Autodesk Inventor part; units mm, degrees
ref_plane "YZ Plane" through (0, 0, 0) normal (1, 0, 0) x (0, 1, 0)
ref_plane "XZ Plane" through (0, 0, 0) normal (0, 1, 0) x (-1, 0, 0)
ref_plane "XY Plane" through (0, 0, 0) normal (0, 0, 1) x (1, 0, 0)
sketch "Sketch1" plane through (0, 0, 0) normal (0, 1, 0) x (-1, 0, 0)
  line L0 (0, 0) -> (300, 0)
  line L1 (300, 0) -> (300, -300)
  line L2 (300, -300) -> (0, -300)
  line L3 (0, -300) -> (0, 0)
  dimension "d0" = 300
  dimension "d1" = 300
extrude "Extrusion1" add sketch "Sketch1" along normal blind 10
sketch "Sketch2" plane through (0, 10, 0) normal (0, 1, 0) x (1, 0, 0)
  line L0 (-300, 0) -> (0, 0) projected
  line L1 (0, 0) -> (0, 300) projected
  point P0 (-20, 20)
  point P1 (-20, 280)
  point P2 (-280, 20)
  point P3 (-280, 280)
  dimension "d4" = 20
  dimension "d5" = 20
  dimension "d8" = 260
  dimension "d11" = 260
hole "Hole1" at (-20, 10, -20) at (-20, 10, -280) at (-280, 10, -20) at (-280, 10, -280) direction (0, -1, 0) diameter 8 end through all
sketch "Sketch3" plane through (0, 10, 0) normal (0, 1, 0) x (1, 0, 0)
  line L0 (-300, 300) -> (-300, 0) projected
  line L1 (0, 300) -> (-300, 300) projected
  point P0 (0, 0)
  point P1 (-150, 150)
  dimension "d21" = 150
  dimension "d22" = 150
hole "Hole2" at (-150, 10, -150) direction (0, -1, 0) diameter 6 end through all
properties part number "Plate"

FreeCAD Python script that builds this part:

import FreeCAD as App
import Part
import Sketcher
from FreeCAD import Vector
Q = App.Units.Quantity

doc = App.newDocument("Part")
body = doc.addObject("PartDesign::Body", "Body")

sketch1 = body.newObject("Sketcher::SketchObject", "Sketch")
sketch1.AttachmentSupport = (doc.getObject("XZ_Plane"), [""])
sketch1.MapMode = "FlatFace"
sketch1.addGeometry(Part.LineSegment(Vector(-300, 0, 0), Vector(0, 0, 0)), False)
sketch1.addGeometry(Part.LineSegment(Vector(0, 0, 0), Vector(0, -300, 0)), False)
sketch1.addGeometry(Part.LineSegment(Vector(0, -300, 0), Vector(-300, -300, 0)), False)
sketch1.addGeometry(Part.LineSegment(Vector(-300, -300, 0), Vector(-300, 0, 0)), False)
sketch1.addConstraint(Sketcher.Constraint("Coincident", 0, 2, 1, 1))
sketch1.addConstraint(Sketcher.Constraint("Coincident", 1, 2, 2, 1))
sketch1.addConstraint(Sketcher.Constraint("Coincident", 2, 2, 3, 1))
sketch1.addConstraint(Sketcher.Constraint("Coincident", 3, 2, 0, 1))
sketch1.addConstraint(Sketcher.Constraint("Horizontal", 0))
sketch1.addConstraint(Sketcher.Constraint("Vertical", 1))
sketch1.addConstraint(Sketcher.Constraint("Horizontal", 2))
sketch1.addConstraint(Sketcher.Constraint("Vertical", 3))
sketch1.addConstraint(Sketcher.Constraint("Coincident", 0, 2, -1, 1))
sketch1.addConstraint(Sketcher.Constraint("Equal", 2, 1))
sketch1.addConstraint(Sketcher.Constraint("DistanceX", 0, 1, 0, 2, Q("300 mm")))
pad1 = body.newObject("PartDesign::Pad", "Pad")
pad1.Profile = sketch1
pad1.Length = 10
pad1.Reversed = True

sketch2 = body.newObject("Sketcher::SketchObject", "Sketch001")
sketch2.AttachmentSupport = (doc.getObject("XZ_Plane"), [""])
sketch2.MapMode = "FlatFace"
sketch2.AttachmentOffset = App.Placement(Vector(0, 0, -10), App.Rotation())
sketch2.addGeometry(Part.Circle(Vector(-20, -20, 0), Vector(0, 0, 1), 4), False)
sketch2.addGeometry(Part.Circle(Vector(-20, -280, 0), Vector(0, 0, 1), 4), False)
sketch2.addGeometry(Part.Circle(Vector(-280, -20, 0), Vector(0, 0, 1), 4), False)
sketch2.addGeometry(Part.Circle(Vector(-280, -280, 0), Vector(0, 0, 1), 4), False)
sketch2.addConstraint(Sketcher.Constraint("Equal", 0, 1))
sketch2.addConstraint(Sketcher.Constraint("Equal", 1, 2))
sketch2.addConstraint(Sketcher.Constraint("Equal", 2, 3))
sketch2.addConstraint(Sketcher.Constraint("Horizontal", 0, 3, 2, 3))
sketch2.addConstraint(Sketcher.Constraint("Horizontal", 1, 3, 3, 3))
sketch2.addConstraint(Sketcher.Constraint("Vertical", 0, 3, 1, 3))
sketch2.addConstraint(Sketcher.Constraint("Vertical", 2, 3, 3, 3))
sketch2.addConstraint(Sketcher.Constraint("Diameter", 0, Q("8 mm")))
sketch2.addConstraint(Sketcher.Constraint("DistanceX", 0, 3, -1, 1, Q("20 mm")))
sketch2.addConstraint(Sketcher.Constraint("DistanceY", 0, 3, -1, 1, Q("20 mm")))
sketch2.addConstraint(Sketcher.Constraint("DistanceY", 1, 3, -1, 1, Q("280 mm")))
sketch2.addConstraint(Sketcher.Constraint("DistanceX", 2, 3, -1, 1, Q("280 mm")))
doc.recompute()
hole = body.newObject("PartDesign::Hole", "Hole")
hole.Profile = sketch2
hole.ThreadType = "None"
hole.Diameter = 8
hole.DepthType = "ThroughAll"
hole.Reversed = True

sketch3 = body.newObject("Sketcher::SketchObject", "Sketch002")
sketch3.AttachmentSupport = (doc.getObject("XZ_Plane"), [""])
sketch3.MapMode = "FlatFace"
sketch3.AttachmentOffset = App.Placement(Vector(0, 0, -10), App.Rotation())
sketch3.addGeometry(Part.Circle(Vector(-150, -150, 0), Vector(0, 0, 1), 3), False)
sketch3.addConstraint(Sketcher.Constraint("Diameter", 0, Q("6 mm")))
sketch3.addConstraint(Sketcher.Constraint("DistanceX", 0, 3, -1, 1, Q("150 mm")))
sketch3.addConstraint(Sketcher.Constraint("DistanceY", 0, 3, -1, 1, Q("150 mm")))
doc.recompute()
hole2 = body.newObject("PartDesign::Hole", "Hole001")
hole2.Profile = sketch3
hole2.ThreadType = "None"
hole2.Diameter = 6
hole2.DepthType = "ThroughAll"
hole2.Reversed = True

doc.recompute()
